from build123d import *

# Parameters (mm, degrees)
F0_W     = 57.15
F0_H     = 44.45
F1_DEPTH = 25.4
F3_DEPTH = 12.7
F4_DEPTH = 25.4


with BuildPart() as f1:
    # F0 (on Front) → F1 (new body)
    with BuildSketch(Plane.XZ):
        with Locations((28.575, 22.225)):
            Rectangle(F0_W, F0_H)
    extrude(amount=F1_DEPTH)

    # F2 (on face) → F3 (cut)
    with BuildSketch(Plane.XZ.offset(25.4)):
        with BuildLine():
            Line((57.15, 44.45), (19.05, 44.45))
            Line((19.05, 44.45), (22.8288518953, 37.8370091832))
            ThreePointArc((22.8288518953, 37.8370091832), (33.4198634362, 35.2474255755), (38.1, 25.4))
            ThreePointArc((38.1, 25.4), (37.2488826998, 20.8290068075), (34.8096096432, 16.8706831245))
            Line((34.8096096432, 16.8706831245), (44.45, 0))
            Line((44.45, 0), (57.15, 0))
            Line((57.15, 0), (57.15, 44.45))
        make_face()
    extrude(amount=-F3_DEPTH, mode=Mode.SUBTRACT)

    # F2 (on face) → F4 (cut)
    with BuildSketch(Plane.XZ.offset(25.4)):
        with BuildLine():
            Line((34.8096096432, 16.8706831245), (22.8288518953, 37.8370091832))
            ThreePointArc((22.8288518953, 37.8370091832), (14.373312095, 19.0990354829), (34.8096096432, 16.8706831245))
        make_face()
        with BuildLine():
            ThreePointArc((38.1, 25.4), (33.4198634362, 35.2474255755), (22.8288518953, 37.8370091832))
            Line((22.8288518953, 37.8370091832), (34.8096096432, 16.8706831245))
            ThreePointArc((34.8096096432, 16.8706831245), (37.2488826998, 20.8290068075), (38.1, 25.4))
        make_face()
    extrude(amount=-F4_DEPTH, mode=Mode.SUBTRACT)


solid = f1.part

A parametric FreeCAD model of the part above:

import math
import FreeCAD as App
import Part
import Sketcher
from FreeCAD import Vector
Q = App.Units.Quantity

doc = App.newDocument("Part")
params = doc.addObject("Spreadsheet::Sheet", "Params")
for row, (alias, value) in enumerate([
    ("sketch1_width", "2.25 in"),
    ("sketch1_height", "1.75 in"),
    ("pad1_length", "1 in"),
    ("sketch2_radius", "0.5 in"),
    ("sketch2_width", "1.5 in"),
    ("sketch2_width2", "0.5 in"),
    ("sketch2_height", "1.75 in"),
    ("pocket1_length", "0.5 in"),
    ("sketch3_radius", "0.5 in"),
    ("pocket2_length", "1 in"),
], start=1):
    params.set(f"A{row}", alias)
    params.set(f"B{row}", "=" + value)
    params.setAlias(f"B{row}", alias)

body = doc.addObject("PartDesign::Body", "Body")

# Sketch on XZ plane
sketch1 = body.newObject("Sketcher::SketchObject", "Sketch")
sketch1.AttachmentSupport = (doc.getObject("XZ_Plane"), [""])
sketch1.MapMode = "FlatFace"
sketch1.addGeometry([
    Part.LineSegment(Vector(0, 44, 0), Vector(0, 0, 0)),
    Part.LineSegment(Vector(0, 0, 0), Vector(57, 0, 0)),
    Part.LineSegment(Vector(57, 0, 0), Vector(57, 44, 0)),
    Part.LineSegment(Vector(57, 44, 0), Vector(0, 44, 0)),
], False)
sketch1.addConstraint([
    Sketcher.Constraint("Coincident", 0, 2, 1, 1),
    Sketcher.Constraint("Coincident", 1, 2, 2, 1),
    Sketcher.Constraint("Coincident", 2, 2, 3, 1),
    Sketcher.Constraint("Coincident", 3, 2, 0, 1),
    Sketcher.Constraint("Vertical", 0),
    Sketcher.Constraint("Horizontal", 1),
    Sketcher.Constraint("Vertical", 2),
    Sketcher.Constraint("Horizontal", 3),
    Sketcher.Constraint("Coincident", 0, 2, -1, 1),
    Sketcher.Constraint("DistanceX", 1, 1, 1, 2, Q("2.25 in")),
    Sketcher.Constraint("DistanceY", 0, 2, 0, 1, Q("1.75 in")),
])
sketch1.setExpression("Constraints[9]", "Params.sketch1_width")
sketch1.setExpression("Constraints[10]", "Params.sketch1_height")
pad1 = body.newObject("PartDesign::Pad", "Pad")
pad1.Profile = sketch1
pad1.setExpression("Length", "Params.pad1_length")

# Sketch on XZ plane
sketch2 = body.newObject("Sketcher::SketchObject", "Sketch001")
sketch2.AttachmentSupport = (doc.getObject("XZ_Plane"), [""])
sketch2.MapMode = "FlatFace"
sketch2.AttachmentOffset = App.Placement(Vector(0, 0, 1 * 25.4), App.Rotation())
sketch2.addGeometry([
    Part.LineSegment(Vector(57, 44, 0), Vector(19, 44, 0)),  # 0
    Part.LineSegment(Vector(19, 44, 0), Vector(23, 38, 0)),  # 1
    Part.ArcOfCircle(Part.Circle(Vector(25, 25, 0), Vector(0, 0, 1), 13), math.radians(0), math.radians(102)),  # 2
    Part.ArcOfCircle(Part.Circle(Vector(25, 25, 0), Vector(0, 0, 1), 13), math.radians(-42), math.radians(0)),  # 3
    Part.LineSegment(Vector(35, 17, 0), Vector(44, 0, 0)),  # 4
    Part.LineSegment(Vector(44, 0, 0), Vector(57, 0, 0)),  # 5
    Part.LineSegment(Vector(57, 0, 0), Vector(57, 44, 0)),  # 6
], False)
sketch2.addConstraint([
    Sketcher.Constraint("Coincident", 0, 2, 1, 1),
    Sketcher.Constraint("Coincident", 1, 2, 2, 2),
    Sketcher.Constraint("Tangent", 2, 1, 3, 2),
    Sketcher.Constraint("Coincident", 3, 1, 4, 1),
    Sketcher.Constraint("Coincident", 4, 2, 5, 1),
    Sketcher.Constraint("Coincident", 5, 2, 6, 1),
    Sketcher.Constraint("Coincident", 6, 2, 0, 1),
    Sketcher.Constraint("Horizontal", 0),
    Sketcher.Constraint("Horizontal", 5),
    Sketcher.Constraint("Vertical", 6),
    Sketcher.Constraint("Equal", 2, 3),
    Sketcher.Constraint("PointOnObject", 4, 2, -1),
    Sketcher.Constraint("Parallel", 1, 4),
    Sketcher.Constraint("Horizontal", 3, 3, 2, 1),
    Sketcher.Constraint("Radius", 2, Q("0.5 in")),
    Sketcher.Constraint("DistanceX", 0, 2, 0, 1, Q("1.5 in")),
    Sketcher.Constraint("DistanceX", 5, 1, 5, 2, Q("0.5 in")),
    Sketcher.Constraint("DistanceX", -1, 1, 2, 3, Q("1 in")),
    Sketcher.Constraint("DistanceY", -1, 1, 2, 3, Q("1 in")),
    Sketcher.Constraint("DistanceY", 6, 1, 6, 2, Q("1.75 in")),
    Sketcher.Constraint("DistanceX", -1, 1, 0, 2, Q("0.75 in")),
    Sketcher.Constraint("DistanceY", -1, 1, 3, 1, Q("0.6642001 in")),
])
sketch2.setExpression("Constraints[14]", "Params.sketch2_radius")
sketch2.setExpression("Constraints[15]", "Params.sketch2_width")
sketch2.setExpression("Constraints[16]", "Params.sketch2_width2")
sketch2.setExpression("Constraints[19]", "Params.sketch2_height")
pocket1 = body.newObject("PartDesign::Pocket", "Pocket")
pocket1.Profile = sketch2
pocket1.setExpression("Length", "Params.pocket1_length")

# Sketch on XZ plane
sketch3 = body.newObject("Sketcher::SketchObject", "Sketch002")
sketch3.AttachmentSupport = (doc.getObject("XZ_Plane"), [""])
sketch3.MapMode = "FlatFace"
sketch3.AttachmentOffset = App.Placement(Vector(0, 0, 1 * 25.4), App.Rotation())
sketch3.addGeometry([
    Part.ArcOfCircle(Part.Circle(Vector(25, 25, 0), Vector(0, 0, 1), 13), math.radians(102), math.radians(318)),
    Part.ArcOfCircle(Part.Circle(Vector(25, 25, 0), Vector(0, 0, 1), 13), math.radians(-42), math.radians(0)),
    Part.ArcOfCircle(Part.Circle(Vector(25, 25, 0), Vector(0, 0, 1), 13), math.radians(0), math.radians(102)),
], False)
sketch3.addConstraint([
    Sketcher.Constraint("Tangent", 0, 2, 1, 1),
    Sketcher.Constraint("Tangent", 1, 2, 2, 1),
    Sketcher.Constraint("Tangent", 2, 2, 0, 1),
    Sketcher.Constraint("Horizontal", 2, 3, 1, 2),
    Sketcher.Constraint("Radius", 0, Q("0.5 in")),
    Sketcher.Constraint("DistanceX", -1, 1, 0, 3, Q("1 in")),
    Sketcher.Constraint("DistanceY", -1, 1, 0, 3, Q("1 in")),
    Sketcher.Constraint("DistanceY", -1, 1, 0, 2, Q("0.6642001 in")),
    Sketcher.Constraint("DistanceX", -1, 1, 2, 2, 22.828852),
])
sketch3.setExpression("Constraints[4]", "Params.sketch3_radius")
pocket2 = body.newObject("PartDesign::Pocket", "Pocket001")
pocket2.Profile = sketch3
pocket2.setExpression("Length", "Params.pocket2_length")

doc.recompute()
